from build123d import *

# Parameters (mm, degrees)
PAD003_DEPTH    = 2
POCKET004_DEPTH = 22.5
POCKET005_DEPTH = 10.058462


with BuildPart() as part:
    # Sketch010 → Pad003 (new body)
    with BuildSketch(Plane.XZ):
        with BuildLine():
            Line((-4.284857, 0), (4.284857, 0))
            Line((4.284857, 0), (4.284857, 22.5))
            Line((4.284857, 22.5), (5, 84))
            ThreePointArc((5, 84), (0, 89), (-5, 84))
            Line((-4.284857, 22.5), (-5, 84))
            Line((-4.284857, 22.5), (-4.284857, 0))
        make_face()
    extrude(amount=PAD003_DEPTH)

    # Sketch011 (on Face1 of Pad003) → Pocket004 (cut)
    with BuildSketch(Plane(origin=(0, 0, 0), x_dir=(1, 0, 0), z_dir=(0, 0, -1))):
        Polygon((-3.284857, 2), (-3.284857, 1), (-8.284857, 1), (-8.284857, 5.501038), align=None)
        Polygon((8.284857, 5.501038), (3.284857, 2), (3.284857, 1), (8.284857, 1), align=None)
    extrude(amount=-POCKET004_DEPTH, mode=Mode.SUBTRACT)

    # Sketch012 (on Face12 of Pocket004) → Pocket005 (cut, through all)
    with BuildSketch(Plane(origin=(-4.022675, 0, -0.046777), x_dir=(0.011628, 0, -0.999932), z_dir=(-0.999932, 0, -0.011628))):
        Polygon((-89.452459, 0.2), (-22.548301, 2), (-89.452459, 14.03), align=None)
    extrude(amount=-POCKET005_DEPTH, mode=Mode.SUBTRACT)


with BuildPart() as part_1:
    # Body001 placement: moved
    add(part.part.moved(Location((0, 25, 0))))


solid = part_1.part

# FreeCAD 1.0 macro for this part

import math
import FreeCAD as App
import Part
import Sketcher
from FreeCAD import Vector
Q = App.Units.Quantity


def add_polygon(sketch, points):
    """Adds a closed chain of lines whose ends are joined by coincident constraints."""
    first, n = sketch.GeometryCount, len(points)
    for a, b in zip(points, points[1:] + points[:1]):
        sketch.addGeometry(Part.LineSegment(App.Vector(*a, 0), App.Vector(*b, 0)), False)
    for i in range(n):
        sketch.addConstraint(Sketcher.Constraint("Coincident", first + i, 2, first + (i + 1) % n, 1))

doc = App.newDocument("Part")
body = doc.addObject("PartDesign::Body", "Body")

# Sketch on XZ plane
sketch1 = body.newObject("Sketcher::SketchObject", "Sketch")
sketch1.AttachmentSupport = (doc.getObject("XZ_Plane"), [""])
sketch1.MapMode = "FlatFace"
sketch1.addGeometry(Part.LineSegment(Vector(-4, 0, 0), Vector(4, 0, 0)), False)
sketch1.addGeometry(Part.LineSegment(Vector(4, 0, 0), Vector(4, 22, 0)), False)
sketch1.addGeometry(Part.LineSegment(Vector(4, 22, 0), Vector(5, 84, 0)), False)
sketch1.addGeometry(Part.ArcOfCircle(Part.Circle(Vector(0, 84, 0), Vector(0, 0, 1), 5), math.radians(0), math.radians(180)), False)
sketch1.addGeometry(Part.LineSegment(Vector(-5, 84, 0), Vector(-4, 22, 0)), False)
sketch1.addGeometry(Part.LineSegment(Vector(-4, 22, 0), Vector(-4, 0, 0)), False)
sketch1.addConstraint(Sketcher.Constraint("Coincident", 0, 2, 1, 1))
sketch1.addConstraint(Sketcher.Constraint("Coincident", 1, 2, 2, 1))
sketch1.addConstraint(Sketcher.Constraint("Coincident", 2, 2, 3, 1))
sketch1.addConstraint(Sketcher.Constraint("Coincident", 3, 2, 4, 1))
sketch1.addConstraint(Sketcher.Constraint("Coincident", 4, 2, 5, 1))
sketch1.addConstraint(Sketcher.Constraint("Coincident", 5, 2, 0, 1))
sketch1.addConstraint(Sketcher.Constraint("Horizontal", 0))
sketch1.addConstraint(Sketcher.Constraint("Vertical", 1))
sketch1.addConstraint(Sketcher.Constraint("Vertical", 5))
sketch1.addConstraint(Sketcher.Constraint("Symmetric", 0, 2, 5, 2, -1, 1))
sketch1.addConstraint(Sketcher.Constraint("Symmetric", 2, 2, 3, 2, -2))
sketch1.addConstraint(Sketcher.Constraint("Horizontal", 3, 3, 2, 2))
sketch1.addConstraint(Sketcher.Constraint("Horizontal", 1, 2, 4, 2))
sketch1.addConstraint(Sketcher.Constraint("Radius", 3, 5.0))
sketch1.addConstraint(Sketcher.Constraint("DistanceY", 1, 1, 1, 2, 22.5))
sketch1.addConstraint(Sketcher.Constraint("DistanceY", -1, 1, 3, 3, 84.0))
sketch1.addConstraint(Sketcher.Constraint("DistanceX", 0, 1, 0, 2, 8.569714))
pad1 = body.newObject("PartDesign::Pad", "Pad")
pad1.Profile = sketch1
pad1.Length = 2

# Sketch on XY plane
sketch2 = body.newObject("Sketcher::SketchObject", "Sketch001")
sketch2.AttachmentSupport = (doc.getObject("XY_Plane"), [""])
sketch2.MapMode = "FlatFace"
add_polygon(sketch2, [(-3.3, -1), (-3.3, -2), (-8.3, -5.5), (-8.3, -1)])  # lines 0-3
add_polygon(sketch2, [(8.3, -5.5), (3.3, -2), (3.3, -1), (8.3, -1)])  # lines 4-7
sketch2.addConstraint(Sketcher.Constraint("Vertical", 0))
sketch2.addConstraint(Sketcher.Constraint("Vertical", 2))
sketch2.addConstraint(Sketcher.Constraint("Horizontal", 3))
sketch2.addConstraint(Sketcher.Constraint("Vertical", 5))
sketch2.addConstraint(Sketcher.Constraint("Horizontal", 6))
sketch2.addConstraint(Sketcher.Constraint("Vertical", 7))
sketch2.addConstraint(Sketcher.Constraint("Symmetric", 0, 2, 4, 2, -2))
sketch2.addConstraint(Sketcher.Constraint("Symmetric", 2, 2, 6, 2, -2))
sketch2.addConstraint(Sketcher.Constraint("Horizontal", 1, 2, 7, 2))
sketch2.addConstraint(Sketcher.Constraint("DistanceX", 3, 1, 3, 2, 5.0))
sketch2.addConstraint(Sketcher.Constraint("DistanceY", 0, 2, 0, 1, 1.0))
sketch2.addConstraint(Sketcher.Constraint("Angle", 1, Q("-144.999998 deg")))
sketch2.addConstraint(Sketcher.Constraint("DistanceY", 0, 2, -1, 1, 2.0))
sketch2.addConstraint(Sketcher.Constraint("DistanceX", 0, 2, -1, 1, 3.284857))
pocket1 = body.newObject("PartDesign::Pocket", "Pocket")
pocket1.Profile = sketch2
pocket1.Length = 22.5
pocket1.Reversed = True

# Sketch on an angled plane
sketch3 = body.newObject("Sketcher::SketchObject", "Sketch002")
sketch3.Placement = App.Placement(Vector(-4.022675, 0, -0.046777), App.Rotation(Vector(0.011628005, 0, -0.999932392), Vector(0, -0.999999999, 0), Vector(-0.999932392, 0, -0.011628005), "ZXY"))
add_polygon(sketch3, [(-89, 0), (-23, 2), (-89, 14)])  # lines 0-2
sketch3.addConstraint(Sketcher.Constraint("Vertical", 2))
sketch3.addConstraint(Sketcher.Constraint("DistanceY", -1, 1, 0, 2, 2.0))
sketch3.addConstraint(Sketcher.Constraint("DistanceY", 2, 2, 2, 1, 13.83))
sketch3.addConstraint(Sketcher.Constraint("DistanceY", -1, 1, 2, 2, 0.2))
sketch3.addConstraint(Sketcher.Constraint("DistanceX", 0, 2, -1, 1, 22.548301))
sketch3.addConstraint(Sketcher.Constraint("Distance", 1, 67.977108))
pocket2 = body.newObject("PartDesign::Pocket", "Pocket001")
pocket2.Profile = sketch3
pocket2.Type = "ThroughAll"
body2 = doc.addObject("PartDesign::Body", "Body001")
doc.recompute()

body.Placement = App.Placement(Vector(0, 25, 0), App.Rotation(Vector(0, 0, 1), 0))
boolean = body2.newObject("PartDesign::Boolean", "Boolean")
boolean.Type = "Fuse"
boolean.addObjects([body])

doc.recompute()
